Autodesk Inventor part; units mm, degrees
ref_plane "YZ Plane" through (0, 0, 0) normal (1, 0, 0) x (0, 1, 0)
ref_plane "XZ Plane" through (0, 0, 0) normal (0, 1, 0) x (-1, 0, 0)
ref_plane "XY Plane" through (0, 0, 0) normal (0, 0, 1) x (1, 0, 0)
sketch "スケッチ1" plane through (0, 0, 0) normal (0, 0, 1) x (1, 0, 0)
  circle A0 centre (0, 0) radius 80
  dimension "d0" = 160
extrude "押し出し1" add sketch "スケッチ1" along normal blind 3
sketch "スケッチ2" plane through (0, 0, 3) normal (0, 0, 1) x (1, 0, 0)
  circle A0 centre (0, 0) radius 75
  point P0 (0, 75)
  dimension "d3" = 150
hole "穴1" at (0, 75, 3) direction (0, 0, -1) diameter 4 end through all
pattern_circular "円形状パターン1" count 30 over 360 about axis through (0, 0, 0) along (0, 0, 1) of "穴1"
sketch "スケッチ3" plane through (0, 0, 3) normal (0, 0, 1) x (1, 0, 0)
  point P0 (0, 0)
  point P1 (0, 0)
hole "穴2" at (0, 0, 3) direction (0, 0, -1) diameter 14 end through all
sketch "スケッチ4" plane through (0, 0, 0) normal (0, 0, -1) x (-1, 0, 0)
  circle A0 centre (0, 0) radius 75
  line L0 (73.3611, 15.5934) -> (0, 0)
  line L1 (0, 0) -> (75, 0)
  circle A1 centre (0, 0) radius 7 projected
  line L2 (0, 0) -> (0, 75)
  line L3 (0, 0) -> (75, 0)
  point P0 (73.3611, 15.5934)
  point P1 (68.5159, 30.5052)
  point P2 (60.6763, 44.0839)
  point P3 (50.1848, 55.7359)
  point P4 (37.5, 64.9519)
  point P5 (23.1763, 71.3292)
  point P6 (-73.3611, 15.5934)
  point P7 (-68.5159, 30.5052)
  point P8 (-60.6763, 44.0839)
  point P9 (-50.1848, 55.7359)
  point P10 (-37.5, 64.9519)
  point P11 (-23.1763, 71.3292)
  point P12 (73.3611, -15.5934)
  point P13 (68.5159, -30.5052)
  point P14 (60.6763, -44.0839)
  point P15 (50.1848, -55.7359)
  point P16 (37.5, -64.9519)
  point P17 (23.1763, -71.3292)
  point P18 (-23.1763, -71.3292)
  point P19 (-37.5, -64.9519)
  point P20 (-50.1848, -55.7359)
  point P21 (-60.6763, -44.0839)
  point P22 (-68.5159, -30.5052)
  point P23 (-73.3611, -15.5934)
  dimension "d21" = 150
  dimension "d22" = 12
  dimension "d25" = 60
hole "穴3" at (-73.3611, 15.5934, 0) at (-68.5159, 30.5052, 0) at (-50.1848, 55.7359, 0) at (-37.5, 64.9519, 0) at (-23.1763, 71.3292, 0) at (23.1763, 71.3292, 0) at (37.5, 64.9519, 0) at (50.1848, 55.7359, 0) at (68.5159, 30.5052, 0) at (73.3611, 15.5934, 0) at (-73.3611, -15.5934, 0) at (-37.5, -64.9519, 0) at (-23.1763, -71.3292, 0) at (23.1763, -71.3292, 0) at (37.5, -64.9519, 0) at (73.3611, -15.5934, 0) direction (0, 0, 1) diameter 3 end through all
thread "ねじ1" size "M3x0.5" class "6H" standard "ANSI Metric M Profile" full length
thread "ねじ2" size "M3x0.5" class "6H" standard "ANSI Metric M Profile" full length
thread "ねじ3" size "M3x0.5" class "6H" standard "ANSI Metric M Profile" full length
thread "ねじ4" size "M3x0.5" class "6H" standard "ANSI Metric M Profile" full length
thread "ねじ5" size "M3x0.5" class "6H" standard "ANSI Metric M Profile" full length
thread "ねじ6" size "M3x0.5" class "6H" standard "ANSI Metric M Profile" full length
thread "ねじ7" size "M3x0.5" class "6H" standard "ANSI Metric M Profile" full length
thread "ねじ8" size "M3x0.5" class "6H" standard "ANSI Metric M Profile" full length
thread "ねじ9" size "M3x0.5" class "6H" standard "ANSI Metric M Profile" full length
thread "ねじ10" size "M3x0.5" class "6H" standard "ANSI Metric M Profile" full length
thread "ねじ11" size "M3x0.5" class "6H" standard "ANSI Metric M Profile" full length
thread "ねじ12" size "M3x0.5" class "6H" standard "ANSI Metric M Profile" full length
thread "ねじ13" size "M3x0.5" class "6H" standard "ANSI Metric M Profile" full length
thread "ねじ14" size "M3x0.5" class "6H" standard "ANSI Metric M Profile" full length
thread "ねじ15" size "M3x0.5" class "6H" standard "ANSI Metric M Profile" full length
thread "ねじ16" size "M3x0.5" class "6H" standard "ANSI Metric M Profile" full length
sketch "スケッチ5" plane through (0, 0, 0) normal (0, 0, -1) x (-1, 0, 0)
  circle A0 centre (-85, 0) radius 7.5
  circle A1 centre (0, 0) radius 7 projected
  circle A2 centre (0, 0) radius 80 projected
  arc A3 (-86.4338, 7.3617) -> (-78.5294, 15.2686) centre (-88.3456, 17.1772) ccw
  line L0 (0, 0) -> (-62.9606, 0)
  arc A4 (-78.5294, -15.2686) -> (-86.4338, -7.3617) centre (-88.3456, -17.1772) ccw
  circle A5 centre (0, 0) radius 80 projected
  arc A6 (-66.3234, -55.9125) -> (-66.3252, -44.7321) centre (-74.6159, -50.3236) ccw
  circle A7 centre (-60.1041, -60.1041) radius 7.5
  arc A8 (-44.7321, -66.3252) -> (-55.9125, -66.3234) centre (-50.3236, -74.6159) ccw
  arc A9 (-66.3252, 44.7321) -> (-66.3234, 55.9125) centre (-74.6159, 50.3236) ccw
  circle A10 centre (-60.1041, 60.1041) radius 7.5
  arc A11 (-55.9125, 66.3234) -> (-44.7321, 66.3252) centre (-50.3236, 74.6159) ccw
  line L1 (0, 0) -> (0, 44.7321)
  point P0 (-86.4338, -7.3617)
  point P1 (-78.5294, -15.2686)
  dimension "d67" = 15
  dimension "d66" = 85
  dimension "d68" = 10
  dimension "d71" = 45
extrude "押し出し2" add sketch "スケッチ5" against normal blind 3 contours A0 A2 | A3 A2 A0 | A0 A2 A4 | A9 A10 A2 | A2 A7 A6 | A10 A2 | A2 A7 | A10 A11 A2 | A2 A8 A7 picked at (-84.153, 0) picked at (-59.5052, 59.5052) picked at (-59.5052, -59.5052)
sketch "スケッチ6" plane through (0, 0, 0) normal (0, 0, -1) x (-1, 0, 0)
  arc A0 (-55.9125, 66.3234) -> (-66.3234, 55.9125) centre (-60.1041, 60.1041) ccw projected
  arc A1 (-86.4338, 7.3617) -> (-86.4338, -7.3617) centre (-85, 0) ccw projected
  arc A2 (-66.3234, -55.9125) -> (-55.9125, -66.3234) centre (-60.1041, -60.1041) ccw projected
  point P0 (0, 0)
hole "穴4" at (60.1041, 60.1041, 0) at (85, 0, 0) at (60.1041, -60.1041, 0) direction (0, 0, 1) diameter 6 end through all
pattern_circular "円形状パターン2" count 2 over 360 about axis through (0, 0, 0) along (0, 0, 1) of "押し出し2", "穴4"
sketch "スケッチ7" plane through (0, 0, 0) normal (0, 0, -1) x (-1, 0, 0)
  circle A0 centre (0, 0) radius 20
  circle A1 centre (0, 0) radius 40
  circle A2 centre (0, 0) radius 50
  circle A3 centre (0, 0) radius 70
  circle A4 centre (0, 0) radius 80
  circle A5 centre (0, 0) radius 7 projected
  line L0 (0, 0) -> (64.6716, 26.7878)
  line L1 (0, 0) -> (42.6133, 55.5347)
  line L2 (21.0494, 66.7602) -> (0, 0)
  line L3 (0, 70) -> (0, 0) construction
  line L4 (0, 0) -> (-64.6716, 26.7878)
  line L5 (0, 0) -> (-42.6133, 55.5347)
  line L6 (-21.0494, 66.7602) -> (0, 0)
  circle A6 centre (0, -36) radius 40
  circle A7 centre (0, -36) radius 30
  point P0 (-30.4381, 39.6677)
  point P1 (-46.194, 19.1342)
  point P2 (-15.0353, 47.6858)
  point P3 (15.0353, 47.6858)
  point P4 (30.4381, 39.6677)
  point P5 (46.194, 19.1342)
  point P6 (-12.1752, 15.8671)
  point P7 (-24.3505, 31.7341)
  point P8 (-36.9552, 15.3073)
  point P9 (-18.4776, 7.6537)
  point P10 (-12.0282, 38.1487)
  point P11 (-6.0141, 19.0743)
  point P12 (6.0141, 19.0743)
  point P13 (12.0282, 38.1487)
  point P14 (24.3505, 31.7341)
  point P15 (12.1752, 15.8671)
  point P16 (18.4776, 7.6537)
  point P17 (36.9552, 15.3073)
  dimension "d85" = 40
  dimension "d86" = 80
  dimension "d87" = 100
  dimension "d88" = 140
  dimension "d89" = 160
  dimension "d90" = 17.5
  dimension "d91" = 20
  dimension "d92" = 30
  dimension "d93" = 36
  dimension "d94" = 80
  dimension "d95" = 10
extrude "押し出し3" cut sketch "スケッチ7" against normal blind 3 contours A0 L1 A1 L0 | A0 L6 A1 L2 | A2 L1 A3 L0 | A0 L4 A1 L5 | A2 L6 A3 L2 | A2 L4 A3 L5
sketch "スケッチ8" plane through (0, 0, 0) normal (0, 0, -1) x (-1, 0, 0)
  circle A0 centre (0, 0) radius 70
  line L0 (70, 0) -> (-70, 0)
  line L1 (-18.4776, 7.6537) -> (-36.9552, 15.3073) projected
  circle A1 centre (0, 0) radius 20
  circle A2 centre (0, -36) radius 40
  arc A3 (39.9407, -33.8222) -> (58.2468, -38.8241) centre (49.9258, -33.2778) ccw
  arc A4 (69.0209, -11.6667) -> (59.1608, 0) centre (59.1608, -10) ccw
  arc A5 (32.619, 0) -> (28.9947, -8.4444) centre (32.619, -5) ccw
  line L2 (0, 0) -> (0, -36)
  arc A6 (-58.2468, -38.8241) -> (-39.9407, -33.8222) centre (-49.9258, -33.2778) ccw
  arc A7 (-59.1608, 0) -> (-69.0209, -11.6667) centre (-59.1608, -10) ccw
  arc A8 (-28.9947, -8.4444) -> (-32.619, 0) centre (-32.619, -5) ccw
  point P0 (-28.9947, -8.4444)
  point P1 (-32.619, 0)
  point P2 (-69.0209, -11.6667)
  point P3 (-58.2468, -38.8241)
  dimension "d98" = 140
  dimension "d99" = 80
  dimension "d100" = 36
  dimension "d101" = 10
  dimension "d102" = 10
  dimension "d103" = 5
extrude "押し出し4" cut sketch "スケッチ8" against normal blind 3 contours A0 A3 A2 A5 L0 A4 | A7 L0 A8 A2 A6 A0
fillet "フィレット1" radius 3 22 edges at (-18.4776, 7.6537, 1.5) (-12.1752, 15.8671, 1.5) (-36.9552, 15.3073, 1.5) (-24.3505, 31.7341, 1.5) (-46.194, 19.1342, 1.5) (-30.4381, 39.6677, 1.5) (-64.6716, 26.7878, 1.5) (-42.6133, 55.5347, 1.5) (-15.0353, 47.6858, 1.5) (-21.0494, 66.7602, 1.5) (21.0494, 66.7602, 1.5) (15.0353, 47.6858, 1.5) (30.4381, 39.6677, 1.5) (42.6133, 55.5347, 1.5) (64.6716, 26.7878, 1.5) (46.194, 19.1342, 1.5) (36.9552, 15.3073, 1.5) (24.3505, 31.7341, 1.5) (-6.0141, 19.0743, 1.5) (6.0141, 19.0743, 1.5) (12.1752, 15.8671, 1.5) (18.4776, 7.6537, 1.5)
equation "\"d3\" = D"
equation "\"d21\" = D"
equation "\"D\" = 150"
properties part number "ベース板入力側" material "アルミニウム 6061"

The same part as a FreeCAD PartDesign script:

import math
import FreeCAD as App
import Part
import Sketcher
from FreeCAD import Vector
Q = App.Units.Quantity


def edges_at(feature, points):
    """Names of the edges that pass closest to the given points."""
    edges = feature.Shape.Edges
    near = lambda p: min(range(len(edges)), key=lambda i: edges[i].distToShape(Part.Vertex(*p))[0])
    return sorted({f"Edge{near(p) + 1}" for p in points})

doc = App.newDocument("Part")
body = doc.addObject("PartDesign::Body", "Body")

# Sketch on XY plane
sketch1 = doc.addObject("Sketcher::SketchObject", "Sketch")
body.addObject(sketch1)
sketch1.AttachmentSupport = (doc.XY_Plane, [""])
sketch1.MapMode = "FlatFace"
sketch1.addGeometry(Part.Circle(Vector(0, 0, 0), Vector(0, 0, 1), 80), False)
sketch1.addConstraint([
    Sketcher.Constraint("Coincident", 0, 3, -1, 1),
    Sketcher.Constraint("Diameter", 0, Q("160 mm")),
])
pad1 = doc.addObject("PartDesign::Pad", "Pad")
body.addObject(pad1)
pad1.Profile = sketch1
pad1.Length = 3

# Sketch on XY plane
sketch2 = doc.addObject("Sketcher::SketchObject", "Sketch001")
body.addObject(sketch2)
sketch2.AttachmentSupport = (doc.XY_Plane, [""])
sketch2.MapMode = "FlatFace"
sketch2.AttachmentOffset = App.Placement(Vector(0, 0, 3), App.Rotation())
sketch2.addGeometry(Part.Circle(Vector(0, 75, 0), Vector(0, 0, 1), 2), False)
sketch2.addConstraint([
    Sketcher.Constraint("PointOnObject", 0, 3, -2),
    Sketcher.Constraint("Diameter", 0, Q("4 mm")),
    Sketcher.Constraint("DistanceY", -1, 1, 0, 3, Q("75 mm")),
])
doc.recompute()
hole = doc.addObject("PartDesign::Hole", "Hole")
body.addObject(hole)
hole.Profile = sketch2
hole.ThreadType = "None"
hole.Diameter = 4
hole.DepthType = "ThroughAll"
doc.recompute()

polarpattern = doc.addObject("PartDesign::PolarPattern", "PolarPattern")
body.addObject(polarpattern)
polarpattern.Originals = [hole]
polarpattern.Axis = (doc.Z_Axis, [""])
polarpattern.Angle = 360
polarpattern.Occurrences = 30
body.Tip = polarpattern

# Sketch on XY plane
sketch3 = doc.addObject("Sketcher::SketchObject", "Sketch002")
body.addObject(sketch3)
sketch3.AttachmentSupport = (doc.XY_Plane, [""])
sketch3.MapMode = "FlatFace"
sketch3.AttachmentOffset = App.Placement(Vector(0, 0, 3), App.Rotation())
sketch3.addGeometry(Part.Circle(Vector(0, 0, 0), Vector(0, 0, 1), 7), False)
sketch3.addConstraint([
    Sketcher.Constraint("Coincident", 0, 3, -1, 1),
    Sketcher.Constraint("Diameter", 0, Q("14 mm")),
])
doc.recompute()
hole2 = doc.addObject("PartDesign::Hole", "Hole001")
body.addObject(hole2)
hole2.Profile = sketch3
hole2.ThreadType = "None"
hole2.Diameter = 14
hole2.DepthType = "ThroughAll"

# Sketch on XY plane
sketch4 = doc.addObject("Sketcher::SketchObject", "Sketch003")
body.addObject(sketch4)
sketch4.AttachmentSupport = (doc.XY_Plane, [""])
sketch4.MapMode = "FlatFace"
sketch4.addGeometry([
    Part.Circle(Vector(-73.4, 15.6, 0), Vector(0, 0, 1), 1.5),  # 0
    Part.Circle(Vector(-68.5, 30.5, 0), Vector(0, 0, 1), 1.5),  # 1
    Part.Circle(Vector(-50.2, 55.7, 0), Vector(0, 0, 1), 1.5),  # 2
    Part.Circle(Vector(-37.5, 65, 0), Vector(0, 0, 1), 1.5),  # 3
    Part.Circle(Vector(-23.2, 71.3, 0), Vector(0, 0, 1), 1.5),  # 4
    Part.Circle(Vector(23.2, 71.3, 0), Vector(0, 0, 1), 1.5),  # 5
    Part.Circle(Vector(37.5, 65, 0), Vector(0, 0, 1), 1.5),  # 6
    Part.Circle(Vector(50.2, 55.7, 0), Vector(0, 0, 1), 1.5),  # 7
    Part.Circle(Vector(68.5, 30.5, 0), Vector(0, 0, 1), 1.5),  # 8
    Part.Circle(Vector(73.4, 15.6, 0), Vector(0, 0, 1), 1.5),  # 9
    Part.Circle(Vector(-73.4, -15.6, 0), Vector(0, 0, 1), 1.5),  # 10
    Part.Circle(Vector(-37.5, -65, 0), Vector(0, 0, 1), 1.5),  # 11
    Part.Circle(Vector(-23.2, -71.3, 0), Vector(0, 0, 1), 1.5),  # 12
    Part.Circle(Vector(23.2, -71.3, 0), Vector(0, 0, 1), 1.5),  # 13
    Part.Circle(Vector(37.5, -65, 0), Vector(0, 0, 1), 1.5),  # 14
    Part.Circle(Vector(73.4, -15.6, 0), Vector(0, 0, 1), 1.5),  # 15
], False)
sketch4.addConstraint([
    Sketcher.Constraint("Equal", 0, 1),
    Sketcher.Constraint("Equal", 1, 2),
    Sketcher.Constraint("Equal", 2, 3),
    Sketcher.Constraint("Equal", 3, 4),
    Sketcher.Constraint("Equal", 4, 5),
    Sketcher.Constraint("Equal", 5, 6),
    Sketcher.Constraint("Equal", 6, 7),
    Sketcher.Constraint("Equal", 7, 8),
    Sketcher.Constraint("Equal", 8, 9),
    Sketcher.Constraint("Equal", 9, 10),
    Sketcher.Constraint("Equal", 10, 11),
    Sketcher.Constraint("Equal", 11, 12),
    Sketcher.Constraint("Equal", 12, 13),
    Sketcher.Constraint("Equal", 13, 14),
    Sketcher.Constraint("Equal", 14, 15),
    Sketcher.Constraint("Symmetric", 9, 3, 10, 3, -1, 1),
    Sketcher.Constraint("Symmetric", 6, 3, 11, 3, -1, 1),
    Sketcher.Constraint("Symmetric", 5, 3, 12, 3, -1, 1),
    Sketcher.Constraint("Symmetric", 4, 3, 13, 3, -1, 1),
    Sketcher.Constraint("Symmetric", 3, 3, 14, 3, -1, 1),
    Sketcher.Constraint("Symmetric", 0, 3, 15, 3, -1, 1),
    Sketcher.Constraint("Symmetric", 4, 3, 5, 3, -2),
    Sketcher.Constraint("Symmetric", 3, 3, 6, 3, -2),
    Sketcher.Constraint("Symmetric", 2, 3, 7, 3, -2),
    Sketcher.Constraint("Symmetric", 1, 3, 8, 3, -2),
    Sketcher.Constraint("Symmetric", 0, 3, 9, 3, -2),
    Sketcher.Constraint("Diameter", 0, Q("3 mm")),
    Sketcher.Constraint("DistanceX", 3, 3, 6, 3, Q("75 mm")),
    Sketcher.Constraint("DistanceX", 0, 3, -1, 1, Q("73.361 mm")),
    Sketcher.Constraint("DistanceX", 1, 3, -1, 1, Q("68.516 mm")),
    Sketcher.Constraint("DistanceY", -1, 1, 2, 3, Q("55.736 mm")),
    Sketcher.Constraint("DistanceY", -1, 1, 3, 3, Q("64.952 mm")),
    Sketcher.Constraint("DistanceX", 1, 3, 2, 3, Q("18.331 mm")),
    Sketcher.Constraint("DistanceY", 1, 3, 4, 3, Q("40.824 mm")),
    Sketcher.Constraint("DistanceX", 2, 3, 5, 3, Q("73.361 mm")),
    Sketcher.Constraint("DistanceY", 11, 3, 1, 3, Q("95.457 mm")),
    Sketcher.Constraint("DistanceY", -1, 1, 0, 3, Q("15.5934 mm")),
])
doc.recompute()
hole3 = doc.addObject("PartDesign::Hole", "Hole002")
body.addObject(hole3)
hole3.Profile = sketch4
hole3.ThreadType = "None"
hole3.Diameter = 3
hole3.DepthType = "ThroughAll"
hole3.Reversed = True

# Sketch on XY plane
sketch5 = doc.addObject("Sketcher::SketchObject", "Sketch004")
body.addObject(sketch5)
sketch5.AttachmentSupport = (doc.XY_Plane, [""])
sketch5.MapMode = "FlatFace"
sketch5.addGeometry([
    Part.ArcOfCircle(Part.Circle(Vector(88, 17, 0), Vector(0, 0, 1), 10), math.radians(-169), math.radians(-101)),  # 0
    Part.ArcOfCircle(Part.Circle(Vector(85, 0, 0), Vector(0, 0, 1), 8), math.radians(-79), math.radians(79)),  # 1
    Part.ArcOfCircle(Part.Circle(Vector(88, -17, 0), Vector(0, 0, 1), 10), math.radians(101), math.radians(169)),  # 2
    Part.ArcOfCircle(Part.Circle(Vector(0, 0, 0), Vector(0, 0, 1), 80), math.radians(-11), math.radians(11)),  # 3
    Part.ArcOfCircle(Part.Circle(Vector(75, 50, 0), Vector(0, 0, 1), 10), math.radians(146), math.radians(214)),  # 4
    Part.ArcOfCircle(Part.Circle(Vector(0, 0, 0), Vector(0, 0, 1), 80), math.radians(34), math.radians(56)),  # 5
    Part.ArcOfCircle(Part.Circle(Vector(50, 75, 0), Vector(0, 0, 1), 10), math.radians(-124), math.radians(-56)),  # 6
    Part.ArcOfCircle(Part.Circle(Vector(60, 60, 0), Vector(0, 0, 1), 8), math.radians(-34), math.radians(124)),  # 7
    Part.ArcOfCircle(Part.Circle(Vector(75, -50, 0), Vector(0, 0, 1), 10), math.radians(146), math.radians(214)),  # 8
    Part.ArcOfCircle(Part.Circle(Vector(60, -60, 0), Vector(0, 0, 1), 8), math.radians(-124), math.radians(34)),  # 9
    Part.ArcOfCircle(Part.Circle(Vector(50, -75, 0), Vector(0, 0, 1), 10), math.radians(56), math.radians(124)),  # 10
    Part.ArcOfCircle(Part.Circle(Vector(0, 0, 0), Vector(0, 0, 1), 80), math.radians(-56), math.radians(-34)),  # 11
], False)
sketch5.addConstraint([
    Sketcher.Constraint("Tangent", 0, 2, 1, 2),
    Sketcher.Constraint("Tangent", 1, 1, 2, 1),
    Sketcher.Constraint("Tangent", 2, 2, 3, 1),
    Sketcher.Constraint("Tangent", 3, 2, 0, 1),
    Sketcher.Constraint("Tangent", 4, 2, 5, 1),
    Sketcher.Constraint("Tangent", 5, 2, 6, 1),
    Sketcher.Constraint("Tangent", 6, 2, 7, 2),
    Sketcher.Constraint("Tangent", 7, 1, 4, 1),
    Sketcher.Constraint("Tangent", 8, 2, 9, 2),
    Sketcher.Constraint("Tangent", 9, 1, 10, 1),
    Sketcher.Constraint("Tangent", 10, 2, 11, 1),
    Sketcher.Constraint("Tangent", 11, 2, 8, 1),
    Sketcher.Constraint("Coincident", 3, 3, -1, 1),
    Sketcher.Constraint("Coincident", 5, 3, -1, 1),
    Sketcher.Constraint("Coincident", 11, 3, -1, 1),
    Sketcher.Constraint("Equal", 0, 2),
    Sketcher.Constraint("Equal", 2, 4),
    Sketcher.Constraint("Equal", 3, 5),
    Sketcher.Constraint("Equal", 4, 6),
    Sketcher.Constraint("Equal", 1, 7),
    Sketcher.Constraint("Equal", 6, 8),
    Sketcher.Constraint("Equal", 7, 9),
    Sketcher.Constraint("Equal", 8, 10),
    Sketcher.Constraint("Equal", 5, 11),
    Sketcher.Constraint("Symmetric", 7, 3, 9, 3, -1),
    Sketcher.Constraint("PointOnObject", 1, 3, -1),
    Sketcher.Constraint("Radius", 0, Q("10 mm")),
    Sketcher.Constraint("Radius", 1, Q("7.5 mm")),
    Sketcher.Constraint("DistanceX", -1, 1, 1, 3, Q("85 mm")),
    Sketcher.Constraint("Radius", 3, Q("80 mm")),
    Sketcher.Constraint("DistanceX", -1, 1, 4, 3, Q("74.616 mm")),
    Sketcher.Constraint("DistanceY", -1, 1, 6, 3, Q("74.616 mm")),
])
pad2 = doc.addObject("PartDesign::Pad", "Pad001")
body.addObject(pad2)
pad2.Profile = sketch5
pad2.Length = 3

# Sketch on XY plane
sketch6 = doc.addObject("Sketcher::SketchObject", "Sketch005")
body.addObject(sketch6)
sketch6.AttachmentSupport = (doc.XY_Plane, [""])
sketch6.MapMode = "FlatFace"
sketch6.addGeometry([
    Part.Circle(Vector(60.1, 60.1, 0), Vector(0, 0, 1), 3),
    Part.Circle(Vector(85, 0, 0), Vector(0, 0, 1), 3),
    Part.Circle(Vector(60.1, -60.1, 0), Vector(0, 0, 1), 3),
], False)
sketch6.addConstraint([
    Sketcher.Constraint("Equal", 0, 1),
    Sketcher.Constraint("Equal", 1, 2),
    Sketcher.Constraint("Symmetric", 0, 3, 2, 3, -1),
    Sketcher.Constraint("PointOnObject", 1, 3, -1),
    Sketcher.Constraint("Diameter", 0, Q("6 mm")),
    Sketcher.Constraint("DistanceX", -1, 1, 1, 3, Q("85 mm")),
    Sketcher.Constraint("DistanceX", -1, 1, 0, 3, Q("60.104 mm")),
    Sketcher.Constraint("DistanceY", -1, 1, 0, 3, Q("60.104 mm")),
])
doc.recompute()
hole4 = doc.addObject("PartDesign::Hole", "Hole003")
body.addObject(hole4)
hole4.Profile = sketch6
hole4.ThreadType = "None"
hole4.Diameter = 6
hole4.DepthType = "ThroughAll"
hole4.Reversed = True
doc.recompute()

polarpattern2 = doc.addObject("PartDesign::PolarPattern", "PolarPattern001")
body.addObject(polarpattern2)
polarpattern2.Originals = [pad2, hole4]
polarpattern2.Axis = (doc.Z_Axis, [""])
polarpattern2.Angle = 360
polarpattern2.Occurrences = 2
body.Tip = polarpattern2

# Sketch on XY plane
sketch7 = doc.addObject("Sketcher::SketchObject", "Sketch006")
body.addObject(sketch7)
sketch7.AttachmentSupport = (doc.XY_Plane, [""])
sketch7.MapMode = "FlatFace"
sketch7.addGeometry([
    Part.ArcOfCircle(Part.Circle(Vector(0, 0, 0), Vector(0, 0, 1), 20), math.radians(128), math.radians(158)),  # 0
    Part.LineSegment(Vector(-18, 8, 0), Vector(-37, 15, 0)),  # 1
    Part.ArcOfCircle(Part.Circle(Vector(0, 0, 0), Vector(0, 0, 1), 40), math.radians(128), math.radians(158)),  # 2
    Part.LineSegment(Vector(-24, 32, 0), Vector(-12, 16, 0)),  # 3
    Part.ArcOfCircle(Part.Circle(Vector(0, 0, 0), Vector(0, 0, 1), 20), math.radians(73), math.radians(107)),  # 4
    Part.LineSegment(Vector(-6, 19, 0), Vector(-12, 38, 0)),  # 5
    Part.ArcOfCircle(Part.Circle(Vector(0, 0, 0), Vector(0, 0, 1), 40), math.radians(73), math.radians(107)),  # 6
    Part.LineSegment(Vector(12, 38, 0), Vector(6, 19, 0)),  # 7
    Part.ArcOfCircle(Part.Circle(Vector(0, 0, 0), Vector(0, 0, 1), 50), math.radians(128), math.radians(158)),  # 8
    Part.LineSegment(Vector(-46, 19, 0), Vector(-65, 27, 0)),  # 9
    Part.ArcOfCircle(Part.Circle(Vector(0, 0, 0), Vector(0, 0, 1), 70), math.radians(128), math.radians(158)),  # 10
    Part.LineSegment(Vector(-43, 56, 0), Vector(-30, 40, 0)),  # 11
    Part.ArcOfCircle(Part.Circle(Vector(0, 0, 0), Vector(0, 0, 1), 20), math.radians(22), math.radians(52)),  # 12
    Part.LineSegment(Vector(12, 16, 0), Vector(24, 32, 0)),  # 13
    Part.ArcOfCircle(Part.Circle(Vector(0, 0, 0), Vector(0, 0, 1), 40), math.radians(22), math.radians(52)),  # 14
    Part.LineSegment(Vector(37, 15, 0), Vector(18, 8, 0)),  # 15
    Part.ArcOfCircle(Part.Circle(Vector(0, 0, 0), Vector(0, 0, 1), 50), math.radians(73), math.radians(107)),  # 16
    Part.LineSegment(Vector(-15, 48, 0), Vector(-21, 67, 0)),  # 17
    Part.ArcOfCircle(Part.Circle(Vector(0, 0, 0), Vector(0, 0, 1), 70), math.radians(73), math.radians(107)),  # 18
    Part.LineSegment(Vector(21, 67, 0), Vector(15, 48, 0)),  # 19
    Part.ArcOfCircle(Part.Circle(Vector(0, 0, 0), Vector(0, 0, 1), 50), math.radians(22), math.radians(52)),  # 20
    Part.LineSegment(Vector(30, 40, 0), Vector(43, 56, 0)),  # 21
    Part.ArcOfCircle(Part.Circle(Vector(0, 0, 0), Vector(0, 0, 1), 70), math.radians(22), math.radians(52)),  # 22
    Part.LineSegment(Vector(65, 27, 0), Vector(46, 19, 0)),  # 23
], False)
sketch7.addConstraint([
    Sketcher.Constraint("Coincident", 0, 2, 1, 1),
    Sketcher.Constraint("Coincident", 1, 2, 2, 2),
    Sketcher.Constraint("Coincident", 2, 1, 3, 1),
    Sketcher.Constraint("Coincident", 3, 2, 0, 1),
    Sketcher.Constraint("Coincident", 4, 2, 5, 1),
    Sketcher.Constraint("Coincident", 5, 2, 6, 2),
    Sketcher.Constraint("Coincident", 6, 1, 7, 1),
    Sketcher.Constraint("Coincident", 7, 2, 4, 1),
    Sketcher.Constraint("Coincident", 8, 2, 9, 1),
    Sketcher.Constraint("Coincident", 9, 2, 10, 2),
    Sketcher.Constraint("Coincident", 10, 1, 11, 1),
    Sketcher.Constraint("Coincident", 11, 2, 8, 1),
    Sketcher.Constraint("Coincident", 12, 2, 13, 1),
    Sketcher.Constraint("Coincident", 13, 2, 14, 2),
    Sketcher.Constraint("Coincident", 14, 1, 15, 1),
    Sketcher.Constraint("Coincident", 15, 2, 12, 1),
    Sketcher.Constraint("Coincident", 16, 2, 17, 1),
    Sketcher.Constraint("Coincident", 17, 2, 18, 2),
    Sketcher.Constraint("Coincident", 18, 1, 19, 1),
    Sketcher.Constraint("Coincident", 19, 2, 16, 1),
    Sketcher.Constraint("Coincident", 20, 2, 21, 1),
    Sketcher.Constraint("Coincident", 21, 2, 22, 2),
    Sketcher.Constraint("Coincident", 22, 1, 23, 1),
    Sketcher.Constraint("Coincident", 23, 2, 20, 1),
    Sketcher.Constraint("Coincident", 0, 3, -1, 1),
    Sketcher.Constraint("Coincident", 2, 3, -1, 1),
    Sketcher.Constraint("Coincident", 4, 3, -1, 1),
    Sketcher.Constraint("Coincident", 6, 3, -1, 1),
    Sketcher.Constraint("Coincident", 8, 3, -1, 1),
    Sketcher.Constraint("Coincident", 10, 3, -1, 1),
    Sketcher.Constraint("Coincident", 12, 3, -1, 1),
    Sketcher.Constraint("Coincident", 14, 3, -1, 1),
    Sketcher.Constraint("Coincident", 16, 3, -1, 1),
    Sketcher.Constraint("Coincident", 18, 3, -1, 1),
    Sketcher.Constraint("Coincident", 20, 3, -1, 1),
    Sketcher.Constraint("Coincident", 22, 3, -1, 1),
    Sketcher.Constraint("Equal", 0, 4),
    Sketcher.Constraint("Equal", 2, 6),
    Sketcher.Constraint("Equal", 4, 12),
    Sketcher.Constraint("Equal", 6, 14),
    Sketcher.Constraint("Equal", 8, 16),
    Sketcher.Constraint("Equal", 10, 18),
    Sketcher.Constraint("Equal", 16, 20),
    Sketcher.Constraint("Equal", 18, 22),
    Sketcher.Constraint("Parallel", 1, 9),
    Sketcher.Constraint("Parallel", 3, 11),
    Sketcher.Constraint("Parallel", 5, 17),
    Sketcher.Constraint("Parallel", 7, 19),
    Sketcher.Constraint("Parallel", 13, 21),
    Sketcher.Constraint("Parallel", 15, 23),
    Sketcher.Constraint("Horizontal", 5, 2, 6, 1),
    Sketcher.Constraint("Horizontal", 4, 2, 7, 2),
    Sketcher.Constraint("Horizontal", 3, 2, 12, 2),
    Sketcher.Constraint("Horizontal", 2, 1, 13, 2),
    Sketcher.Constraint("Horizontal", 1, 2, 14, 1),
    Sketcher.Constraint("Horizontal", 0, 2, 15, 2),
    Sketcher.Constraint("Horizontal", 17, 2, 18, 1),
    Sketcher.Constraint("Horizontal", 11, 2, 20, 2),
    Sketcher.Constraint("Horizontal", 9, 2, 22, 1),
    Sketcher.Constraint("Equal", 7, 9),
    Sketcher.Constraint("Radius", 0, Q("20 mm")),
    Sketcher.Constraint("Radius", 2, Q("40 mm")),
    Sketcher.Constraint("Radius", 8, Q("50 mm")),
    Sketcher.Constraint("Angle", 1, Q("157.5 deg")),
    Sketcher.Constraint("Angle", 3, Q("-52.5 deg")),
    Sketcher.Constraint("Angle", 5, Q("107.5 deg")),
    Sketcher.Constraint("DistanceY", 8, 2, 2, 1, Q("12.6 mm")),
    Sketcher.Constraint("DistanceX", 12, 2, 14, 1, Q("24.78 mm")),
    Sketcher.Constraint("DistanceY", -1, 1, 3, 2, Q("15.867 mm")),
    Sketcher.Constraint("DistanceX", 4, 2, -1, 1, Q("6.014 mm")),
    Sketcher.Constraint("DistanceX", 11, 2, -1, 1, Q("30.438 mm")),
    Sketcher.Constraint("DistanceX", 16, 2, 5, 2, Q("3.007 mm")),
])
pocket1 = doc.addObject("PartDesign::Pocket", "Pocket")
body.addObject(pocket1)
pocket1.Profile = sketch7
pocket1.Length = 3
pocket1.Reversed = True

# Sketch on XY plane
sketch8 = doc.addObject("Sketcher::SketchObject", "Sketch007")
body.addObject(sketch8)
sketch8.AttachmentSupport = (doc.XY_Plane, [""])
sketch8.MapMode = "FlatFace"
sketch8.addGeometry([
    Part.ArcOfCircle(Part.Circle(Vector(0, 0, 0), Vector(0, 0, 1), 70), math.radians(-170), math.radians(-146)),  # 0
    Part.ArcOfCircle(Part.Circle(Vector(-59.2, -10, 0), Vector(0, 0, 1), 10), math.radians(90), math.radians(190)),  # 1
    Part.LineSegment(Vector(-59.2, 0, 0), Vector(-32.6, 0, 0)),  # 2
    Part.ArcOfCircle(Part.Circle(Vector(-32.6, -5, 0), Vector(0, 0, 1), 5), math.radians(-44), math.radians(90)),  # 3
    Part.ArcOfCircle(Part.Circle(Vector(0, -36, 0), Vector(0, 0, 1), 40), math.radians(136), math.radians(177)),  # 4
    Part.ArcOfCircle(Part.Circle(Vector(-49.9, -33.3, 0), Vector(0, 0, 1), 10), math.radians(-146), math.radians(-3)),  # 5
    Part.ArcOfCircle(Part.Circle(Vector(59.2, -10, 0), Vector(0, 0, 1), 10), math.radians(-10), math.radians(90)),  # 6
    Part.ArcOfCircle(Part.Circle(Vector(0, 0, 0), Vector(0, 0, 1), 70), math.radians(-34), math.radians(-10)),  # 7
    Part.ArcOfCircle(Part.Circle(Vector(49.9, -33.3, 0), Vector(0, 0, 1), 10), math.radians(-177), math.radians(-34)),  # 8
    Part.ArcOfCircle(Part.Circle(Vector(0, -36, 0), Vector(0, 0, 1), 40), math.radians(3), math.radians(44)),  # 9
    Part.ArcOfCircle(Part.Circle(Vector(32.6, -5, 0), Vector(0, 0, 1), 5), math.radians(90), math.radians(224)),  # 10
    Part.LineSegment(Vector(32.6, 0, 0), Vector(59.2, 0, 0)),  # 11
], False)
sketch8.addConstraint([
    Sketcher.Constraint("Tangent", 0, 1, 1, 2),
    Sketcher.Constraint("Tangent", 1, 1, 2, 1),
    Sketcher.Constraint("Tangent", 2, 2, 3, 2),
    Sketcher.Constraint("Tangent", 3, 1, 4, 1),
    Sketcher.Constraint("Tangent", 4, 2, 5, 2),
    Sketcher.Constraint("Tangent", 5, 1, 0, 2),
    Sketcher.Constraint("Tangent", 6, 1, 7, 2),
    Sketcher.Constraint("Tangent", 7, 1, 8, 2),
    Sketcher.Constraint("Tangent", 8, 1, 9, 1),
    Sketcher.Constraint("Tangent", 9, 2, 10, 2),
    Sketcher.Constraint("Tangent", 10, 1, 11, 1),
    Sketcher.Constraint("Tangent", 11, 2, 6, 2),
    Sketcher.Constraint("Horizontal", 2),
    Sketcher.Constraint("Horizontal", 11),
    Sketcher.Constraint("Coincident", 0, 3, -1, 1),
    Sketcher.Constraint("Coincident", 7, 3, -1, 1),
    Sketcher.Constraint("Coincident", 9, 3, 4, 3),
    Sketcher.Constraint("Equal", 1, 5),
    Sketcher.Constraint("Equal", 5, 6),
    Sketcher.Constraint("Equal", 0, 7),
    Sketcher.Constraint("Equal", 6, 8),
    Sketcher.Constraint("Equal", 4, 9),
    Sketcher.Constraint("Equal", 3, 10),
    Sketcher.Constraint("Symmetric", 2, 2, 10, 1, -1, 1),
    Sketcher.Constraint("PointOnObject", 4, 3, -2),
    Sketcher.Constraint("Radius", 0, Q("70 mm")),
    Sketcher.Constraint("Radius", 1, Q("10 mm")),
    Sketcher.Constraint("Radius", 3, Q("5 mm")),
    Sketcher.Constraint("Radius", 4, Q("40 mm")),
    Sketcher.Constraint("DistanceY", 4, 3, -1, 1, Q("36 mm")),
])
pocket2 = doc.addObject("PartDesign::Pocket", "Pocket001")
body.addObject(pocket2)
pocket2.Profile = sketch8
pocket2.Length = 3
pocket2.Reversed = True
doc.recompute()

fillet = doc.addObject("PartDesign::Fillet", "Fillet")
body.addObject(fillet)
fillet.Base = (pocket2, edges_at(pocket2, [
    (-18.478, 7.654, 1.5),
    (-12.175, 15.867, 1.5),
    (-36.955, 15.307, 1.5),
    (-24.351, 31.734, 1.5),
    (-46.194, 19.134, 1.5),
    (-30.438, 39.668, 1.5),
    (-64.672, 26.788, 1.5),
    (-42.613, 55.535, 1.5),
    (-15.035, 47.686, 1.5),
    (-21.049, 66.76, 1.5),
    (21.049, 66.76, 1.5),
    (15.035, 47.686, 1.5),
    (30.438, 39.668, 1.5),
    (42.613, 55.535, 1.5),
    (64.672, 26.788, 1.5),
    (46.194, 19.134, 1.5),
    (36.955, 15.307, 1.5),
    (24.351, 31.734, 1.5),
    (-6.014, 19.074, 1.5),
    (6.014, 19.074, 1.5),
    (12.175, 15.867, 1.5),
    (18.478, 7.654, 1.5),
]))
fillet.Radius = 3

doc.recompute()
